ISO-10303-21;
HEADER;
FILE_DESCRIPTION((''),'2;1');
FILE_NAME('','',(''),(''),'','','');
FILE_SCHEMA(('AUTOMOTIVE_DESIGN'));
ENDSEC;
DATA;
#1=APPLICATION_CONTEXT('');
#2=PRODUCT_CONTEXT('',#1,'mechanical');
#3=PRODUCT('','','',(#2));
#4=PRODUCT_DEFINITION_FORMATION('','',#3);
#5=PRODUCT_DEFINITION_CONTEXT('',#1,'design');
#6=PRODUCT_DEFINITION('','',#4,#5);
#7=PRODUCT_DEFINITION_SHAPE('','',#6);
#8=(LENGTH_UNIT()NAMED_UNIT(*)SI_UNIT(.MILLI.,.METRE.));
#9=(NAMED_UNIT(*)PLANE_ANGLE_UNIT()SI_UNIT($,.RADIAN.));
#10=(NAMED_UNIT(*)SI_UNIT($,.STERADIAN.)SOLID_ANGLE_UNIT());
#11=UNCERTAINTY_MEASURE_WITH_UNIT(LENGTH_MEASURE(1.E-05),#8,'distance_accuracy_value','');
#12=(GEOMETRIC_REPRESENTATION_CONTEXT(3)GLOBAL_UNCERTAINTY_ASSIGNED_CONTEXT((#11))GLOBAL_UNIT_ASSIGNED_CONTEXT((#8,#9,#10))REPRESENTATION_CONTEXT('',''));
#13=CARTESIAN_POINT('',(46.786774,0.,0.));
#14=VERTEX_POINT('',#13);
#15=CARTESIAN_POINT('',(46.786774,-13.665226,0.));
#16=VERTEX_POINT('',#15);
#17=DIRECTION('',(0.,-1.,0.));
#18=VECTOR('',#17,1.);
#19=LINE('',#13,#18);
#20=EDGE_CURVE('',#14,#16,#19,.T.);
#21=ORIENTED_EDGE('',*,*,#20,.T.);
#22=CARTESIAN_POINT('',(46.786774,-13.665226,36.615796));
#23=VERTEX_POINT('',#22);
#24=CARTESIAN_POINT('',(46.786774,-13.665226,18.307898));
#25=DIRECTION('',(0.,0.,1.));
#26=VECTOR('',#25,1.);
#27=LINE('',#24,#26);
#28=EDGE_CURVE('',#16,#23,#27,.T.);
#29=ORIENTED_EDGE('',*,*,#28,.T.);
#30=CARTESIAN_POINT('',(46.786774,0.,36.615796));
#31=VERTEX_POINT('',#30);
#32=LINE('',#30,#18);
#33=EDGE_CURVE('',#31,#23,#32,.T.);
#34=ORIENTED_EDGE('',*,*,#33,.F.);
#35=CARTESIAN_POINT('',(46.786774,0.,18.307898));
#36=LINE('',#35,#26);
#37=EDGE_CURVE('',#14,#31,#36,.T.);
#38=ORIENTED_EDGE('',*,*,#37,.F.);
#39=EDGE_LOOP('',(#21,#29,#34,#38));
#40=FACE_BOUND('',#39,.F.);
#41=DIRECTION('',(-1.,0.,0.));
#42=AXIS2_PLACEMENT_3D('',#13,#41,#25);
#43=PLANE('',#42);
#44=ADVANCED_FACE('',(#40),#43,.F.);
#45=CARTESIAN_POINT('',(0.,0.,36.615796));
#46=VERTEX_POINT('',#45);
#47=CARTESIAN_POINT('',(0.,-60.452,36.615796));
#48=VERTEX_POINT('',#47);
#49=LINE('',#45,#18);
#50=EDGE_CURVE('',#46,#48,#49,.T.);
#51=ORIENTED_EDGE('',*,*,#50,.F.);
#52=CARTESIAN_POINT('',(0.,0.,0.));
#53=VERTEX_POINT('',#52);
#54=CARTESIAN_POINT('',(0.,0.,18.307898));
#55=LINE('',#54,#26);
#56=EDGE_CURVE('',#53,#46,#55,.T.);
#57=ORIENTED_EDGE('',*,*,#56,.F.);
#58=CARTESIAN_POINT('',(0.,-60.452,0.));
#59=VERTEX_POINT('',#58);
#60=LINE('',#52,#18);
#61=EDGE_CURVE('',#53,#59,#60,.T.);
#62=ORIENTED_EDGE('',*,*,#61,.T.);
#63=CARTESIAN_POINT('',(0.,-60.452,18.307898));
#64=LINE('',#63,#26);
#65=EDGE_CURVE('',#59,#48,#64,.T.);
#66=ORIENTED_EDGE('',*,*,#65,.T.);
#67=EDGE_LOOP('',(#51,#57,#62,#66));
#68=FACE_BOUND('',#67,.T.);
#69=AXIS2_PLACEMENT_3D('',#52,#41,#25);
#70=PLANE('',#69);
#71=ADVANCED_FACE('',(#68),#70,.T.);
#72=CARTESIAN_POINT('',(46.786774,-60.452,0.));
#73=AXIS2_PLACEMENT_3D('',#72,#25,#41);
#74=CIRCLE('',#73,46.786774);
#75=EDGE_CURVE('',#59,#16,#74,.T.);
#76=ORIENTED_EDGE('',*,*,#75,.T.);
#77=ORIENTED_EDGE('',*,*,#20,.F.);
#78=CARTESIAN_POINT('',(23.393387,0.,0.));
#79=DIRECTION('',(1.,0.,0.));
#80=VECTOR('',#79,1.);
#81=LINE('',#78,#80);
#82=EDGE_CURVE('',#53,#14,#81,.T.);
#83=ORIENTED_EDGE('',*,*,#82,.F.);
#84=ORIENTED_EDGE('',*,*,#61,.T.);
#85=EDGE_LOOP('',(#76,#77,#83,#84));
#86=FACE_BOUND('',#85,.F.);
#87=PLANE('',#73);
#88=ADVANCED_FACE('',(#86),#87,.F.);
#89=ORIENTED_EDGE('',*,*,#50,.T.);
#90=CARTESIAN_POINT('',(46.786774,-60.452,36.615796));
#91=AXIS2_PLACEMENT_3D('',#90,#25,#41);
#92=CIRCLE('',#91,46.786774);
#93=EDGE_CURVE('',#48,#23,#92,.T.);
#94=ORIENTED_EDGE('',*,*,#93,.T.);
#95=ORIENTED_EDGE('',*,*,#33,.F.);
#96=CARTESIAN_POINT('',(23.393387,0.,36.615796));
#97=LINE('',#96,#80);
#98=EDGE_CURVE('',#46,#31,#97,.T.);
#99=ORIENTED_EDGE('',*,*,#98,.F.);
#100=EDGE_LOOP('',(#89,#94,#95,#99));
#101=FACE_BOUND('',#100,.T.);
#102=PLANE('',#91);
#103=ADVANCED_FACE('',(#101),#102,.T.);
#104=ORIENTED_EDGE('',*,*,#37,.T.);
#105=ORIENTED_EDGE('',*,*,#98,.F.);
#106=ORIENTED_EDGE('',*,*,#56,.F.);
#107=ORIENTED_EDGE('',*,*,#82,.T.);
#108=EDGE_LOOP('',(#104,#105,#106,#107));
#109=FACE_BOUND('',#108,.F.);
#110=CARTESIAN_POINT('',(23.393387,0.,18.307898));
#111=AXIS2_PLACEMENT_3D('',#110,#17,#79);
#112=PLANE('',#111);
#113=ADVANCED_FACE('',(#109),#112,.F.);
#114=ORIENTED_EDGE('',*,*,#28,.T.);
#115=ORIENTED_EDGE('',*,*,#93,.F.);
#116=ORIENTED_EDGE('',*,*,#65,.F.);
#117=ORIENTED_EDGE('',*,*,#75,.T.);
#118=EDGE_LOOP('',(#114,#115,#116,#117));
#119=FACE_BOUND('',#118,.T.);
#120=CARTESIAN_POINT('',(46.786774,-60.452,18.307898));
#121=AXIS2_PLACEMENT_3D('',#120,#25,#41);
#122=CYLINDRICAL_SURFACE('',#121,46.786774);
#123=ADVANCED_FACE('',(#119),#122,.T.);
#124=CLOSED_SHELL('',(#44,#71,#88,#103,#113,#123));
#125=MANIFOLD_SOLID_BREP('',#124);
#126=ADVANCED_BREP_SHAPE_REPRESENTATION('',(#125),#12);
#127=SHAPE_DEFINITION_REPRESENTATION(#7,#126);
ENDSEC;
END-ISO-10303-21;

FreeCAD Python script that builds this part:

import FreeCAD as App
import Part
import Sketcher
from FreeCAD import Vector
Q = App.Units.Quantity


def add_polygon(sketch, points):
    """Adds a closed chain of lines whose ends are joined by coincident constraints."""
    first, n = sketch.GeometryCount, len(points)
    for a, b in zip(points, points[1:] + points[:1]):
        sketch.addGeometry(Part.LineSegment(App.Vector(*a, 0), App.Vector(*b, 0)), False)
    for i in range(n):
        sketch.addConstraint(Sketcher.Constraint("Coincident", first + i, 2, first + (i + 1) % n, 1))

doc = App.newDocument("Part")
body = doc.addObject("PartDesign::Body", "Body")

# Sketch on XZ plane
sketch1 = doc.addObject("Sketcher::SketchObject", "Sketch")
body.addObject(sketch1)
sketch1.AttachmentSupport = (doc.XZ_Plane, [""])
sketch1.MapMode = "FlatFace"
add_polygon(sketch1, [(0, 37), (0, 0), (47, 0), (47, 37)])  # lines 0-3
sketch1.addConstraint([
    Sketcher.Constraint("Vertical", 0),
    Sketcher.Constraint("Horizontal", 1),
    Sketcher.Constraint("Vertical", 2),
    Sketcher.Constraint("Horizontal", 3),
    Sketcher.Constraint("Coincident", 0, 2, -1, 1),
    Sketcher.Constraint("DistanceX", 1, 1, 1, 2, 46.786774),
    Sketcher.Constraint("DistanceY", 0, 2, 0, 1, 36.615796),
])
pad1 = doc.addObject("PartDesign::Pad", "Pad")
body.addObject(pad1)
pad1.Profile = sketch1
pad1.Length = Q("2.38 in")

# Sketch on XZ plane
sketch2 = doc.addObject("Sketcher::SketchObject", "Sketch001")
body.addObject(sketch2)
sketch2.AttachmentSupport = (doc.XZ_Plane, [""])
sketch2.MapMode = "FlatFace"
sketch2.AttachmentOffset = App.Placement(Vector(0, 0, 2.38 * 25.4), App.Rotation())
add_polygon(sketch2, [(0, 37), (0, 0), (47, 0), (47, 37)])  # lines 0-3
sketch2.addGeometry(Part.LineSegment(Vector(47, 0, 0), Vector(47, 37, 0)), True)  # axis
sketch2.addConstraint([
    Sketcher.Constraint("Vertical", 0),
    Sketcher.Constraint("Horizontal", 1),
    Sketcher.Constraint("Vertical", 2),
    Sketcher.Constraint("Horizontal", 3),
    Sketcher.Constraint("Vertical", 4),
    Sketcher.Constraint("Coincident", 0, 2, -1, 1),
    Sketcher.Constraint("Coincident", 4, 1, 1, 2),
    Sketcher.Constraint("Horizontal", 3, 2, 4, 2),
    Sketcher.Constraint("DistanceX", 1, 1, 1, 2, 46.786774),
    Sketcher.Constraint("DistanceY", 0, 2, 0, 1, 36.615796),
])
revolution = doc.addObject("PartDesign::Revolution", "Revolution")
body.addObject(revolution)
revolution.Profile = sketch2
revolution.ReferenceAxis = (sketch2, ["Axis0"])
revolution.Angle = 360

doc.recompute()
